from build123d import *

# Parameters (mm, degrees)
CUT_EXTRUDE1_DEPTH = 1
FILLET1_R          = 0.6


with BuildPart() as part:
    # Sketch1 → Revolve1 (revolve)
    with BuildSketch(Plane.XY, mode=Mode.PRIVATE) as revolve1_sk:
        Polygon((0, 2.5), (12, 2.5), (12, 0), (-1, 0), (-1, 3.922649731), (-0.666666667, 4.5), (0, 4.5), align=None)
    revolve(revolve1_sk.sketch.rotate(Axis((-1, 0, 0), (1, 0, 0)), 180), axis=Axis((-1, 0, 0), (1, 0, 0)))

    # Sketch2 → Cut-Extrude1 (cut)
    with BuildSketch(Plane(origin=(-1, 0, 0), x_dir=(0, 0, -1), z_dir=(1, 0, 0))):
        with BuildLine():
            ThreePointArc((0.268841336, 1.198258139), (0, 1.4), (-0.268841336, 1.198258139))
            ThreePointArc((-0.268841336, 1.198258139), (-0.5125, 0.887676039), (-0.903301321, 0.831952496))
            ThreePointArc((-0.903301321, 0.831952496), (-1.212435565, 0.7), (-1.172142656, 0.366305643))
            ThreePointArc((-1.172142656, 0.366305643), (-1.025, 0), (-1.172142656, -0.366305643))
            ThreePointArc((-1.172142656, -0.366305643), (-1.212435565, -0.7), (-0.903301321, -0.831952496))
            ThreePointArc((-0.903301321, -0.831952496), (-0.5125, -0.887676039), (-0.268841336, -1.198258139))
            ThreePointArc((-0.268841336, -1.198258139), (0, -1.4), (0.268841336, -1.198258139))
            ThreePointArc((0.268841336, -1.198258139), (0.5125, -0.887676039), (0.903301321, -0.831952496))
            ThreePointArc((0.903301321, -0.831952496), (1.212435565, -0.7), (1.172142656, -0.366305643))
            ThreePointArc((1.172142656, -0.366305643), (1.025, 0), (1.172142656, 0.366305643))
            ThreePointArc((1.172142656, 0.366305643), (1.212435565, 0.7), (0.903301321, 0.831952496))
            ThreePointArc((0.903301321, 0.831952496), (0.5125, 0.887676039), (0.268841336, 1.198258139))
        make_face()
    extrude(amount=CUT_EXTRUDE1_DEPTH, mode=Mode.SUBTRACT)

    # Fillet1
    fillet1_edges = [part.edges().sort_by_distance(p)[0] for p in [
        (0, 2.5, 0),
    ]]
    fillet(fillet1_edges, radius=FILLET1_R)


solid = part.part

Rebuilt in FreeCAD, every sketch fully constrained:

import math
import FreeCAD as App
import Part
import Sketcher
from FreeCAD import Vector
Q = App.Units.Quantity


def edges_at(feature, points):
    """Names of the edges that pass closest to the given points."""
    edges = feature.Shape.Edges
    near = lambda p: min(range(len(edges)), key=lambda i: edges[i].distToShape(Part.Vertex(*p))[0])
    return sorted({f"Edge{near(p) + 1}" for p in points})


def add_polygon(sketch, points):
    """Adds a closed chain of lines whose ends are joined by coincident constraints."""
    first, n = sketch.GeometryCount, len(points)
    for a, b in zip(points, points[1:] + points[:1]):
        sketch.addGeometry(Part.LineSegment(App.Vector(*a, 0), App.Vector(*b, 0)), False)
    for i in range(n):
        sketch.addConstraint(Sketcher.Constraint("Coincident", first + i, 2, first + (i + 1) % n, 1))

doc = App.newDocument("Part")
body = doc.addObject("PartDesign::Body", "Body")

# Sketch on XY plane
sketch1 = body.newObject("Sketcher::SketchObject", "Sketch")
sketch1.AttachmentSupport = (doc.getObject("XY_Plane"), [""])
sketch1.MapMode = "FlatFace"
add_polygon(sketch1, [(12, 2.5), (0, 2.5), (0, 4.5), (-0.7, 4.5), (-1, 3.9), (-1, 0), (12, 0)])  # lines 0-6
sketch1.addConstraint(Sketcher.Constraint("Horizontal", 0))
sketch1.addConstraint(Sketcher.Constraint("Vertical", 1))
sketch1.addConstraint(Sketcher.Constraint("Horizontal", 2))
sketch1.addConstraint(Sketcher.Constraint("Vertical", 4))
sketch1.addConstraint(Sketcher.Constraint("Horizontal", 5))
sketch1.addConstraint(Sketcher.Constraint("Vertical", 6))
sketch1.addConstraint(Sketcher.Constraint("PointOnObject", 0, 2, -2))
sketch1.addConstraint(Sketcher.Constraint("PointOnObject", 4, 2, -1))
sketch1.addConstraint(Sketcher.Constraint("DistanceX", 0, 2, 0, 1, Q("12 mm")))
sketch1.addConstraint(Sketcher.Constraint("DistanceX", 5, 1, 5, 2, Q("13 mm")))
sketch1.addConstraint(Sketcher.Constraint("DistanceY", 1, 1, 1, 2, Q("2 mm")))
sketch1.addConstraint(Sketcher.Constraint("Angle", 3, Q("-120 deg")))
sketch1.addConstraint(Sketcher.Constraint("DistanceY", 6, 1, 6, 2, Q("2.5 mm")))
sketch1.addConstraint(Sketcher.Constraint("DistanceY", 4, 2, 4, 1, Q("3.92265 mm")))
revolution = body.newObject("PartDesign::Revolution", "Revolution")
revolution.Profile = sketch1
revolution.ReferenceAxis = (sketch1, ["H_Axis"])
revolution.Angle = 360

# Sketch on YZ plane
sketch2 = body.newObject("Sketcher::SketchObject", "Sketch001")
sketch2.AttachmentSupport = (doc.getObject("YZ_Plane"), [""])
sketch2.MapMode = "FlatFace"
sketch2.AttachmentOffset = App.Placement(Vector(0, 0, -1), App.Rotation())
sketch2.addGeometry(Part.ArcOfCircle(Part.Circle(Vector(1.12, 0, 0), Vector(0, 0, 1), 0.28), math.radians(-74), math.radians(74)), False)
sketch2.addGeometry(Part.ArcOfCircle(Part.Circle(Vector(1.35, 0.78, 0), Vector(0, 0, 1), 0.53), math.radians(166), math.radians(254)), False)
sketch2.addGeometry(Part.ArcOfCircle(Part.Circle(Vector(0.56, 0.97, 0), Vector(0, 0, 1), 0.28), math.radians(-14), math.radians(134)), False)
sketch2.addGeometry(Part.ArcOfCircle(Part.Circle(Vector(0, 1.55, 0), Vector(0, 0, 1), 0.53), math.radians(-134), math.radians(-46)), False)
sketch2.addGeometry(Part.ArcOfCircle(Part.Circle(Vector(-0.56, 0.97, 0), Vector(0, 0, 1), 0.28), math.radians(46), math.radians(194)), False)
sketch2.addGeometry(Part.ArcOfCircle(Part.Circle(Vector(-1.35, 0.78, 0), Vector(0, 0, 1), 0.53), math.radians(-74), math.radians(14)), False)
sketch2.addGeometry(Part.ArcOfCircle(Part.Circle(Vector(-1.12, 0, 0), Vector(0, 0, 1), 0.28), math.radians(106), math.radians(254)), False)
sketch2.addGeometry(Part.ArcOfCircle(Part.Circle(Vector(-1.35, -0.78, 0), Vector(0, 0, 1), 0.53), math.radians(-14), math.radians(74)), False)
sketch2.addGeometry(Part.ArcOfCircle(Part.Circle(Vector(-0.56, -0.97, 0), Vector(0, 0, 1), 0.28), math.radians(166), math.radians(314)), False)
sketch2.addGeometry(Part.ArcOfCircle(Part.Circle(Vector(0, -1.55, 0), Vector(0, 0, 1), 0.53), math.radians(46), math.radians(134)), False)
sketch2.addGeometry(Part.ArcOfCircle(Part.Circle(Vector(0.56, -0.97, 0), Vector(0, 0, 1), 0.28), math.radians(-134), math.radians(14)), False)
sketch2.addGeometry(Part.ArcOfCircle(Part.Circle(Vector(1.35, -0.78, 0), Vector(0, 0, 1), 0.53), math.radians(106), math.radians(194)), False)
sketch2.addConstraint(Sketcher.Constraint("Tangent", 0, 2, 1, 2))
sketch2.addConstraint(Sketcher.Constraint("Tangent", 1, 1, 2, 1))
sketch2.addConstraint(Sketcher.Constraint("Tangent", 2, 2, 3, 2))
sketch2.addConstraint(Sketcher.Constraint("Tangent", 3, 1, 4, 1))
sketch2.addConstraint(Sketcher.Constraint("Tangent", 4, 2, 5, 2))
sketch2.addConstraint(Sketcher.Constraint("Tangent", 5, 1, 6, 1))
sketch2.addConstraint(Sketcher.Constraint("Tangent", 6, 2, 7, 2))
sketch2.addConstraint(Sketcher.Constraint("Tangent", 7, 1, 8, 1))
sketch2.addConstraint(Sketcher.Constraint("Tangent", 8, 2, 9, 2))
sketch2.addConstraint(Sketcher.Constraint("Tangent", 9, 1, 10, 1))
sketch2.addConstraint(Sketcher.Constraint("Tangent", 10, 2, 11, 2))
sketch2.addConstraint(Sketcher.Constraint("Tangent", 11, 1, 0, 1))
sketch2.addConstraint(Sketcher.Constraint("Equal", 0, 2))
sketch2.addConstraint(Sketcher.Constraint("Equal", 1, 3))
sketch2.addConstraint(Sketcher.Constraint("Equal", 2, 4))
sketch2.addConstraint(Sketcher.Constraint("Equal", 3, 5))
sketch2.addConstraint(Sketcher.Constraint("Equal", 4, 6))
sketch2.addConstraint(Sketcher.Constraint("Equal", 5, 7))
sketch2.addConstraint(Sketcher.Constraint("Equal", 6, 8))
sketch2.addConstraint(Sketcher.Constraint("Equal", 7, 9))
sketch2.addConstraint(Sketcher.Constraint("Equal", 8, 10))
sketch2.addConstraint(Sketcher.Constraint("Equal", 9, 11))
sketch2.addConstraint(Sketcher.Constraint("Symmetric", 0, 3, 6, 3, -1, 1))
sketch2.addConstraint(Sketcher.Constraint("Symmetric", 2, 3, 8, 3, -1, 1))
sketch2.addConstraint(Sketcher.Constraint("Symmetric", 4, 3, 10, 3, -1, 1))
sketch2.addConstraint(Sketcher.Constraint("Symmetric", 2, 3, 4, 3, -2))
sketch2.addConstraint(Sketcher.Constraint("PointOnObject", 0, 3, -1))
sketch2.addConstraint(Sketcher.Constraint("Radius", 0, Q("0.28 mm")))
sketch2.addConstraint(Sketcher.Constraint("DistanceX", -1, 1, 0, 3, Q("1.12 mm")))
sketch2.addConstraint(Sketcher.Constraint("DistanceX", -1, 1, 2, 3, Q("0.56 mm")))
sketch2.addConstraint(Sketcher.Constraint("Radius", 1, Q("0.529523 mm")))
sketch2.addConstraint(Sketcher.Constraint("DistanceX", 0, 2, 1, 3, Q("0.147998 mm")))
pocket1 = body.newObject("PartDesign::Pocket", "Pocket")
pocket1.Profile = sketch2
pocket1.Length = 1
pocket1.Reversed = True
doc.recompute()

fillet = body.newObject("PartDesign::Fillet", "Fillet")
fillet.Base = (pocket1, edges_at(pocket1, [(0, 2.5, 0)]))
fillet.Radius = 0.6

doc.recompute()
